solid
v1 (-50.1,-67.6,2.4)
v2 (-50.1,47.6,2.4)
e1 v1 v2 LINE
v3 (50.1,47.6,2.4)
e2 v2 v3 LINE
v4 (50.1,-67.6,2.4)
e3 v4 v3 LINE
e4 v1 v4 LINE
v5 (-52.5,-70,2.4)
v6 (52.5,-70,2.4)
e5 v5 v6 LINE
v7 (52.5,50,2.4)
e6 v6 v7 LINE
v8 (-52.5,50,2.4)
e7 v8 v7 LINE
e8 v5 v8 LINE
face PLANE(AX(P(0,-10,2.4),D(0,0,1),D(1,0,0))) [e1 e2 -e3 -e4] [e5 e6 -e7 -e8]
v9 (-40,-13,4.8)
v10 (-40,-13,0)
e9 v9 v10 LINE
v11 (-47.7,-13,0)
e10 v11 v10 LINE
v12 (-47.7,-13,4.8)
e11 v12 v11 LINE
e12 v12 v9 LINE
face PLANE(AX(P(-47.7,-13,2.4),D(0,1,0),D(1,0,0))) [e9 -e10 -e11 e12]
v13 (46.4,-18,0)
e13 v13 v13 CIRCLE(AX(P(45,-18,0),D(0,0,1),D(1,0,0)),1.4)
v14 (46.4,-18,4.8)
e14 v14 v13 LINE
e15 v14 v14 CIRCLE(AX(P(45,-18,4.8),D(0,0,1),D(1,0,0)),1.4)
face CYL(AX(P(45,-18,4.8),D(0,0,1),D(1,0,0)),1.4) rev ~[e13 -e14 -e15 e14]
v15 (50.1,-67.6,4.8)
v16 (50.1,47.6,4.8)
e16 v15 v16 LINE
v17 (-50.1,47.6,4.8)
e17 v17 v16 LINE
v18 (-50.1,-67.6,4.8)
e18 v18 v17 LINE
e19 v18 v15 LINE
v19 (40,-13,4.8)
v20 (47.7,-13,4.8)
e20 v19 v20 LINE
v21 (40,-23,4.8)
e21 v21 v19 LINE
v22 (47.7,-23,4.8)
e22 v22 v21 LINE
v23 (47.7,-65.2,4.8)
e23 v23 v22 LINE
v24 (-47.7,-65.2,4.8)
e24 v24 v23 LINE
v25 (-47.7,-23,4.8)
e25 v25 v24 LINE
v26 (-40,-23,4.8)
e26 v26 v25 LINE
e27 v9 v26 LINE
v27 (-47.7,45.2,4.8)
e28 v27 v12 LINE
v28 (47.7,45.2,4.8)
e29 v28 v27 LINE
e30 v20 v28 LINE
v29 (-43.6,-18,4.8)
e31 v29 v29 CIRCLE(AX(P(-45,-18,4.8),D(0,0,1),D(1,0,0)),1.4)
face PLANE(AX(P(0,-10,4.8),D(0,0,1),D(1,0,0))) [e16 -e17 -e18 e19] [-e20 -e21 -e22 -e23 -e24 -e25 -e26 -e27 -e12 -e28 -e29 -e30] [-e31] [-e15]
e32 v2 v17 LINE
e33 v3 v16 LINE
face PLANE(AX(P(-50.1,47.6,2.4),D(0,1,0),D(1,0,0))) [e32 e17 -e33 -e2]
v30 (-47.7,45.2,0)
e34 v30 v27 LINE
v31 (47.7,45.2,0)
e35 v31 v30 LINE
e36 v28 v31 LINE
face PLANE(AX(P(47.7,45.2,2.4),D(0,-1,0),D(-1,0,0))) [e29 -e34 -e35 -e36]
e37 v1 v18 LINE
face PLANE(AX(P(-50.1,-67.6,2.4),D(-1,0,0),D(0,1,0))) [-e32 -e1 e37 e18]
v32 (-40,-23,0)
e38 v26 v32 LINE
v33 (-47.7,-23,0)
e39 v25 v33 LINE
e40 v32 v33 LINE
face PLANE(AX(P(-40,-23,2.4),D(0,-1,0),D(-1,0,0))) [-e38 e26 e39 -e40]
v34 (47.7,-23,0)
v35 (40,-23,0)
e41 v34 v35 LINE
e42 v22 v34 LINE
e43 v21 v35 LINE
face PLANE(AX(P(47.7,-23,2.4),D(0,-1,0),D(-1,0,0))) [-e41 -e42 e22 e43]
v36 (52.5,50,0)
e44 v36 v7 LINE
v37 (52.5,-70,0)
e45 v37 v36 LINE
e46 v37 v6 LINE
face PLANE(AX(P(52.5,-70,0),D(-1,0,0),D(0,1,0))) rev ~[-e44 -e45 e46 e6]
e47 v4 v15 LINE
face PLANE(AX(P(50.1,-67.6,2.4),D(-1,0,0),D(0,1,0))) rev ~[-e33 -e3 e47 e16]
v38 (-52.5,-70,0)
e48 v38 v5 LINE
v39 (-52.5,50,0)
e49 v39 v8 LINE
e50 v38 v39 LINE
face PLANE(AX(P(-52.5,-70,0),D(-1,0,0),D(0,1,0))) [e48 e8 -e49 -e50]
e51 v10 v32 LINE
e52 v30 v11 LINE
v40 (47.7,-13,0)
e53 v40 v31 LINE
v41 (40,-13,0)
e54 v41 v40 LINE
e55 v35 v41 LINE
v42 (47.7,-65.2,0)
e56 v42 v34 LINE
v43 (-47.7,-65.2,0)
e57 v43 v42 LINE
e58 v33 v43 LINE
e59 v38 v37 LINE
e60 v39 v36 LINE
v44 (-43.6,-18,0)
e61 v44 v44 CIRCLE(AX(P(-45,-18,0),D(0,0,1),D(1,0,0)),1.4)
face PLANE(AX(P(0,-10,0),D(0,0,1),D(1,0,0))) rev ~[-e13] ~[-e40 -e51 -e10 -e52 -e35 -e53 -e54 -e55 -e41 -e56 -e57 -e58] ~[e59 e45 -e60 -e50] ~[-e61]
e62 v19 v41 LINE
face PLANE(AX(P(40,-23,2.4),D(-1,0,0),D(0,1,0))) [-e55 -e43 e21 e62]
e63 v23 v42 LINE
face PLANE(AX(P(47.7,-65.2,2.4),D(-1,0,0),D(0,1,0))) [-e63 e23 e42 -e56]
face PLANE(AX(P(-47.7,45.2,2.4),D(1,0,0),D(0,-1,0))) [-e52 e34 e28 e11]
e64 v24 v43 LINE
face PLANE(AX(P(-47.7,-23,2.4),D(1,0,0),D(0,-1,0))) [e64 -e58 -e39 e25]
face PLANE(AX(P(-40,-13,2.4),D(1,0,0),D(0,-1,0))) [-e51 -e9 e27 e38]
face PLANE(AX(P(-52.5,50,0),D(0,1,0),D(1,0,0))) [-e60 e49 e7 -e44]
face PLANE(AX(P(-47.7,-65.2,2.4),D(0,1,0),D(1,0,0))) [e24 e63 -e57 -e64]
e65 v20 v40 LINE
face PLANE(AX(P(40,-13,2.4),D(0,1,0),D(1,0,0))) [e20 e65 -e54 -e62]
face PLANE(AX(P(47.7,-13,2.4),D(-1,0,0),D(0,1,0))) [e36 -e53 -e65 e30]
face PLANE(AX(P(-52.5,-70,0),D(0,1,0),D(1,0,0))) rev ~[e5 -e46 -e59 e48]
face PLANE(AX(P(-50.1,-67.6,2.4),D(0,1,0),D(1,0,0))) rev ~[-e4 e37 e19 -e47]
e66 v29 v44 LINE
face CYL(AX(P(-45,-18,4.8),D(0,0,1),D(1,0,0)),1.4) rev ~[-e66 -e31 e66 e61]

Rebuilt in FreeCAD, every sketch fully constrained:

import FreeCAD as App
import Part
import Sketcher

V = App.Vector
Q = App.Units.Quantity

doc = App.newDocument("Part")
body = doc.addObject("PartDesign::Body", "Body")

sketch1 = doc.addObject("Sketcher::SketchObject", "Sketch")
body.addObject(sketch1)
sketch1.AttachmentSupport = (doc.XY_Plane, [""])
sketch1.MapMode = "FlatFace"
sketch1.addGeometry([
    Part.LineSegment(V(-52, 50, 0), V(-52, -70, 0)),
    Part.LineSegment(V(-52, -70, 0), V(52, -70, 0)),
    Part.LineSegment(V(52, -70, 0), V(52, 50, 0)),
    Part.LineSegment(V(52, 50, 0), V(-52, 50, 0)),
], False)
sketch1.addConstraint([
    Sketcher.Constraint("Coincident", 0, 2, 1, 1),
    Sketcher.Constraint("Coincident", 1, 2, 2, 1),
    Sketcher.Constraint("Coincident", 2, 2, 3, 1),
    Sketcher.Constraint("Coincident", 3, 2, 0, 1),
    Sketcher.Constraint("Vertical", 0),
    Sketcher.Constraint("Horizontal", 1),
    Sketcher.Constraint("Vertical", 2),
    Sketcher.Constraint("Horizontal", 3),
    Sketcher.Constraint("DistanceX", 1, 1, 1, 2, Q("105 mm")),
    Sketcher.Constraint("DistanceY", 0, 2, 0, 1, Q("120 mm")),
    Sketcher.Constraint("DistanceY", 0, 2, -1, 1, Q("70 mm")),
    Sketcher.Constraint("DistanceX", 0, 2, -1, 1, Q("52.5 mm")),
])
pad1 = doc.addObject("PartDesign::Pad", "Pad")
body.addObject(pad1)
pad1.Profile = sketch1
pad1.Length = 2.4

sketch2 = doc.addObject("Sketcher::SketchObject", "Sketch001")
body.addObject(sketch2)
sketch2.AttachmentSupport = (doc.XY_Plane, [""])
sketch2.MapMode = "FlatFace"
sketch2.AttachmentOffset = App.Placement(V(0, 0, 2.4), App.Rotation())
sketch2.addGeometry([
    Part.LineSegment(V(-48, 45, 0), V(-48, -13, 0)),
    Part.LineSegment(V(-48, -13, 0), V(-40, -13, 0)),
    Part.LineSegment(V(-40, -13, 0), V(-40, -23, 0)),
    Part.LineSegment(V(-40, -23, 0), V(-48, -23, 0)),
    Part.LineSegment(V(-48, -23, 0), V(-48, -65, 0)),
    Part.LineSegment(V(-48, -65, 0), V(48, -65, 0)),
    Part.LineSegment(V(48, -65, 0), V(48, -23, 0)),
    Part.LineSegment(V(48, -23, 0), V(40, -23, 0)),
    Part.LineSegment(V(40, -23, 0), V(40, -13, 0)),
    Part.LineSegment(V(40, -13, 0), V(48, -13, 0)),
    Part.LineSegment(V(48, -13, 0), V(48, 45, 0)),
    Part.LineSegment(V(48, 45, 0), V(-48, 45, 0)),
], False)
sketch2.addConstraint([
    Sketcher.Constraint("Coincident", 0, 2, 1, 1),
    Sketcher.Constraint("Coincident", 1, 2, 2, 1),
    Sketcher.Constraint("Coincident", 2, 2, 3, 1),
    Sketcher.Constraint("Coincident", 3, 2, 4, 1),
    Sketcher.Constraint("Coincident", 4, 2, 5, 1),
    Sketcher.Constraint("Coincident", 5, 2, 6, 1),
    Sketcher.Constraint("Coincident", 6, 2, 7, 1),
    Sketcher.Constraint("Coincident", 7, 2, 8, 1),
    Sketcher.Constraint("Coincident", 8, 2, 9, 1),
    Sketcher.Constraint("Coincident", 9, 2, 10, 1),
    Sketcher.Constraint("Coincident", 10, 2, 11, 1),
    Sketcher.Constraint("Coincident", 11, 2, 0, 1),
    Sketcher.Constraint("Vertical", 0),
    Sketcher.Constraint("Horizontal", 1),
    Sketcher.Constraint("Vertical", 2),
    Sketcher.Constraint("Horizontal", 3),
    Sketcher.Constraint("Vertical", 4),
    Sketcher.Constraint("Horizontal", 5),
    Sketcher.Constraint("Vertical", 6),
    Sketcher.Constraint("Horizontal", 7),
    Sketcher.Constraint("Vertical", 8),
    Sketcher.Constraint("Horizontal", 9),
    Sketcher.Constraint("Vertical", 10),
    Sketcher.Constraint("Horizontal", 11),
    Sketcher.Constraint("Symmetric", 3, 2, 6, 2, -2),
    Sketcher.Constraint("Symmetric", 1, 2, 8, 2, -2),
    Sketcher.Constraint("Vertical", 0, 2, 3, 2),
    Sketcher.Constraint("Vertical", 6, 2, 9, 2),
    Sketcher.Constraint("DistanceY", 2, 2, 2, 1, Q("10 mm")),
    Sketcher.Constraint("DistanceX", 1, 1, 1, 2, Q("7.7 mm")),
    Sketcher.Constraint("DistanceX", 5, 1, 5, 2, Q("95.4 mm")),
    Sketcher.Constraint("DistanceY", 0, 2, 0, 1, Q("58.2 mm")),
    Sketcher.Constraint("DistanceY", 4, 2, 4, 1, Q("42.2 mm")),
    Sketcher.Constraint("DistanceY", 0, 2, -1, 1, Q("13 mm")),
])
pocket1 = doc.addObject("PartDesign::Pocket", "Pocket")
body.addObject(pocket1)
pocket1.Profile = sketch2
pocket1.Type = "ThroughAll"
pocket1.Midplane = True

sketch3 = doc.addObject("Sketcher::SketchObject", "Sketch002")
body.addObject(sketch3)
sketch3.AttachmentSupport = (doc.XY_Plane, [""])
sketch3.MapMode = "FlatFace"
sketch3.AttachmentOffset = App.Placement(V(0, 0, 2.4), App.Rotation())
sketch3.addGeometry([
    Part.LineSegment(V(-50, 48, 0), V(-50, -68, 0)),
    Part.LineSegment(V(-50, -68, 0), V(50, -68, 0)),
    Part.LineSegment(V(50, -68, 0), V(50, 48, 0)),
    Part.LineSegment(V(50, 48, 0), V(-50, 48, 0)),
    Part.LineSegment(V(-48, -13, 0), V(-48, 45, 0)),
    Part.LineSegment(V(-48, 45, 0), V(48, 45, 0)),
    Part.LineSegment(V(48, 45, 0), V(48, -13, 0)),
    Part.LineSegment(V(48, -13, 0), V(40, -13, 0)),
    Part.LineSegment(V(40, -13, 0), V(40, -23, 0)),
    Part.LineSegment(V(40, -23, 0), V(48, -23, 0)),
    Part.LineSegment(V(48, -23, 0), V(48, -65, 0)),
    Part.LineSegment(V(48, -65, 0), V(-48, -65, 0)),
    Part.LineSegment(V(-48, -65, 0), V(-48, -23, 0)),
    Part.LineSegment(V(-48, -23, 0), V(-40, -23, 0)),
    Part.LineSegment(V(-40, -23, 0), V(-40, -13, 0)),
    Part.LineSegment(V(-40, -13, 0), V(-48, -13, 0)),
], False)
sketch3.addConstraint([
    Sketcher.Constraint("Coincident", 0, 2, 1, 1),
    Sketcher.Constraint("Coincident", 1, 2, 2, 1),
    Sketcher.Constraint("Coincident", 2, 2, 3, 1),
    Sketcher.Constraint("Coincident", 3, 2, 0, 1),
    Sketcher.Constraint("Coincident", 4, 2, 5, 1),
    Sketcher.Constraint("Coincident", 5, 2, 6, 1),
    Sketcher.Constraint("Coincident", 6, 2, 7, 1),
    Sketcher.Constraint("Coincident", 7, 2, 8, 1),
    Sketcher.Constraint("Coincident", 8, 2, 9, 1),
    Sketcher.Constraint("Coincident", 9, 2, 10, 1),
    Sketcher.Constraint("Coincident", 10, 2, 11, 1),
    Sketcher.Constraint("Coincident", 11, 2, 12, 1),
    Sketcher.Constraint("Coincident", 12, 2, 13, 1),
    Sketcher.Constraint("Coincident", 13, 2, 14, 1),
    Sketcher.Constraint("Coincident", 14, 2, 15, 1),
    Sketcher.Constraint("Coincident", 15, 2, 4, 1),
    Sketcher.Constraint("Vertical", 0),
    Sketcher.Constraint("Horizontal", 1),
    Sketcher.Constraint("Vertical", 2),
    Sketcher.Constraint("Horizontal", 3),
    Sketcher.Constraint("Vertical", 4),
    Sketcher.Constraint("Horizontal", 5),
    Sketcher.Constraint("Vertical", 6),
    Sketcher.Constraint("Horizontal", 7),
    Sketcher.Constraint("Vertical", 8),
    Sketcher.Constraint("Horizontal", 9),
    Sketcher.Constraint("Vertical", 10),
    Sketcher.Constraint("Horizontal", 11),
    Sketcher.Constraint("Vertical", 12),
    Sketcher.Constraint("Horizontal", 13),
    Sketcher.Constraint("Vertical", 14),
    Sketcher.Constraint("Horizontal", 15),
    Sketcher.Constraint("Symmetric", 9, 2, 12, 2, -2),
    Sketcher.Constraint("Symmetric", 7, 2, 14, 2, -2),
    Sketcher.Constraint("Vertical", 6, 2, 9, 2),
    Sketcher.Constraint("Vertical", 4, 2, 11, 2),
    Sketcher.Constraint("DistanceY", 8, 2, 8, 1, Q("10 mm")),
    Sketcher.Constraint("DistanceX", 1, 1, 1, 2, Q("100.2 mm")),
    Sketcher.Constraint("DistanceX", 5, 1, 5, 2, Q("95.4 mm")),
    Sketcher.Constraint("DistanceX", 7, 2, 7, 1, Q("7.7 mm")),
    Sketcher.Constraint("DistanceY", 0, 2, 0, 1, Q("115.2 mm")),
    Sketcher.Constraint("DistanceY", 4, 1, 4, 2, Q("58.2 mm")),
    Sketcher.Constraint("DistanceY", 10, 2, 10, 1, Q("42.2 mm")),
    Sketcher.Constraint("DistanceY", 6, 2, -1, 1, Q("13 mm")),
    Sketcher.Constraint("DistanceX", 0, 2, -1, 1, Q("50.1 mm")),
    Sketcher.Constraint("DistanceY", 0, 2, -1, 1, Q("67.6 mm")),
])
pad2 = doc.addObject("PartDesign::Pad", "Pad001")
body.addObject(pad2)
pad2.Profile = sketch3
pad2.Length = 2.4

sketch4 = doc.addObject("Sketcher::SketchObject", "Sketch003")
body.addObject(sketch4)
sketch4.AttachmentSupport = (doc.XY_Plane, [""])
sketch4.MapMode = "FlatFace"
sketch4.AttachmentOffset = App.Placement(V(0, 0, 4.8), App.Rotation())
sketch4.addGeometry([
    Part.Circle(V(-45, -18, 0), V(0, 0, 1), 1.4),
    Part.Circle(V(45, -18, 0), V(0, 0, 1), 1.4),
], False)
sketch4.addConstraint([
    Sketcher.Constraint("Equal", 0, 1),
    Sketcher.Constraint("Symmetric", 0, 3, 1, 3, -2),
    Sketcher.Constraint("Diameter", 0, Q("2.8 mm")),
    Sketcher.Constraint("DistanceX", 0, 3, -1, 1, Q("45 mm")),
    Sketcher.Constraint("DistanceY", 0, 3, -1, 1, Q("18 mm")),
])
pocket2 = doc.addObject("PartDesign::Pocket", "Pocket001")
body.addObject(pocket2)
pocket2.Profile = sketch4
pocket2.Length = 5

doc.recompute()
